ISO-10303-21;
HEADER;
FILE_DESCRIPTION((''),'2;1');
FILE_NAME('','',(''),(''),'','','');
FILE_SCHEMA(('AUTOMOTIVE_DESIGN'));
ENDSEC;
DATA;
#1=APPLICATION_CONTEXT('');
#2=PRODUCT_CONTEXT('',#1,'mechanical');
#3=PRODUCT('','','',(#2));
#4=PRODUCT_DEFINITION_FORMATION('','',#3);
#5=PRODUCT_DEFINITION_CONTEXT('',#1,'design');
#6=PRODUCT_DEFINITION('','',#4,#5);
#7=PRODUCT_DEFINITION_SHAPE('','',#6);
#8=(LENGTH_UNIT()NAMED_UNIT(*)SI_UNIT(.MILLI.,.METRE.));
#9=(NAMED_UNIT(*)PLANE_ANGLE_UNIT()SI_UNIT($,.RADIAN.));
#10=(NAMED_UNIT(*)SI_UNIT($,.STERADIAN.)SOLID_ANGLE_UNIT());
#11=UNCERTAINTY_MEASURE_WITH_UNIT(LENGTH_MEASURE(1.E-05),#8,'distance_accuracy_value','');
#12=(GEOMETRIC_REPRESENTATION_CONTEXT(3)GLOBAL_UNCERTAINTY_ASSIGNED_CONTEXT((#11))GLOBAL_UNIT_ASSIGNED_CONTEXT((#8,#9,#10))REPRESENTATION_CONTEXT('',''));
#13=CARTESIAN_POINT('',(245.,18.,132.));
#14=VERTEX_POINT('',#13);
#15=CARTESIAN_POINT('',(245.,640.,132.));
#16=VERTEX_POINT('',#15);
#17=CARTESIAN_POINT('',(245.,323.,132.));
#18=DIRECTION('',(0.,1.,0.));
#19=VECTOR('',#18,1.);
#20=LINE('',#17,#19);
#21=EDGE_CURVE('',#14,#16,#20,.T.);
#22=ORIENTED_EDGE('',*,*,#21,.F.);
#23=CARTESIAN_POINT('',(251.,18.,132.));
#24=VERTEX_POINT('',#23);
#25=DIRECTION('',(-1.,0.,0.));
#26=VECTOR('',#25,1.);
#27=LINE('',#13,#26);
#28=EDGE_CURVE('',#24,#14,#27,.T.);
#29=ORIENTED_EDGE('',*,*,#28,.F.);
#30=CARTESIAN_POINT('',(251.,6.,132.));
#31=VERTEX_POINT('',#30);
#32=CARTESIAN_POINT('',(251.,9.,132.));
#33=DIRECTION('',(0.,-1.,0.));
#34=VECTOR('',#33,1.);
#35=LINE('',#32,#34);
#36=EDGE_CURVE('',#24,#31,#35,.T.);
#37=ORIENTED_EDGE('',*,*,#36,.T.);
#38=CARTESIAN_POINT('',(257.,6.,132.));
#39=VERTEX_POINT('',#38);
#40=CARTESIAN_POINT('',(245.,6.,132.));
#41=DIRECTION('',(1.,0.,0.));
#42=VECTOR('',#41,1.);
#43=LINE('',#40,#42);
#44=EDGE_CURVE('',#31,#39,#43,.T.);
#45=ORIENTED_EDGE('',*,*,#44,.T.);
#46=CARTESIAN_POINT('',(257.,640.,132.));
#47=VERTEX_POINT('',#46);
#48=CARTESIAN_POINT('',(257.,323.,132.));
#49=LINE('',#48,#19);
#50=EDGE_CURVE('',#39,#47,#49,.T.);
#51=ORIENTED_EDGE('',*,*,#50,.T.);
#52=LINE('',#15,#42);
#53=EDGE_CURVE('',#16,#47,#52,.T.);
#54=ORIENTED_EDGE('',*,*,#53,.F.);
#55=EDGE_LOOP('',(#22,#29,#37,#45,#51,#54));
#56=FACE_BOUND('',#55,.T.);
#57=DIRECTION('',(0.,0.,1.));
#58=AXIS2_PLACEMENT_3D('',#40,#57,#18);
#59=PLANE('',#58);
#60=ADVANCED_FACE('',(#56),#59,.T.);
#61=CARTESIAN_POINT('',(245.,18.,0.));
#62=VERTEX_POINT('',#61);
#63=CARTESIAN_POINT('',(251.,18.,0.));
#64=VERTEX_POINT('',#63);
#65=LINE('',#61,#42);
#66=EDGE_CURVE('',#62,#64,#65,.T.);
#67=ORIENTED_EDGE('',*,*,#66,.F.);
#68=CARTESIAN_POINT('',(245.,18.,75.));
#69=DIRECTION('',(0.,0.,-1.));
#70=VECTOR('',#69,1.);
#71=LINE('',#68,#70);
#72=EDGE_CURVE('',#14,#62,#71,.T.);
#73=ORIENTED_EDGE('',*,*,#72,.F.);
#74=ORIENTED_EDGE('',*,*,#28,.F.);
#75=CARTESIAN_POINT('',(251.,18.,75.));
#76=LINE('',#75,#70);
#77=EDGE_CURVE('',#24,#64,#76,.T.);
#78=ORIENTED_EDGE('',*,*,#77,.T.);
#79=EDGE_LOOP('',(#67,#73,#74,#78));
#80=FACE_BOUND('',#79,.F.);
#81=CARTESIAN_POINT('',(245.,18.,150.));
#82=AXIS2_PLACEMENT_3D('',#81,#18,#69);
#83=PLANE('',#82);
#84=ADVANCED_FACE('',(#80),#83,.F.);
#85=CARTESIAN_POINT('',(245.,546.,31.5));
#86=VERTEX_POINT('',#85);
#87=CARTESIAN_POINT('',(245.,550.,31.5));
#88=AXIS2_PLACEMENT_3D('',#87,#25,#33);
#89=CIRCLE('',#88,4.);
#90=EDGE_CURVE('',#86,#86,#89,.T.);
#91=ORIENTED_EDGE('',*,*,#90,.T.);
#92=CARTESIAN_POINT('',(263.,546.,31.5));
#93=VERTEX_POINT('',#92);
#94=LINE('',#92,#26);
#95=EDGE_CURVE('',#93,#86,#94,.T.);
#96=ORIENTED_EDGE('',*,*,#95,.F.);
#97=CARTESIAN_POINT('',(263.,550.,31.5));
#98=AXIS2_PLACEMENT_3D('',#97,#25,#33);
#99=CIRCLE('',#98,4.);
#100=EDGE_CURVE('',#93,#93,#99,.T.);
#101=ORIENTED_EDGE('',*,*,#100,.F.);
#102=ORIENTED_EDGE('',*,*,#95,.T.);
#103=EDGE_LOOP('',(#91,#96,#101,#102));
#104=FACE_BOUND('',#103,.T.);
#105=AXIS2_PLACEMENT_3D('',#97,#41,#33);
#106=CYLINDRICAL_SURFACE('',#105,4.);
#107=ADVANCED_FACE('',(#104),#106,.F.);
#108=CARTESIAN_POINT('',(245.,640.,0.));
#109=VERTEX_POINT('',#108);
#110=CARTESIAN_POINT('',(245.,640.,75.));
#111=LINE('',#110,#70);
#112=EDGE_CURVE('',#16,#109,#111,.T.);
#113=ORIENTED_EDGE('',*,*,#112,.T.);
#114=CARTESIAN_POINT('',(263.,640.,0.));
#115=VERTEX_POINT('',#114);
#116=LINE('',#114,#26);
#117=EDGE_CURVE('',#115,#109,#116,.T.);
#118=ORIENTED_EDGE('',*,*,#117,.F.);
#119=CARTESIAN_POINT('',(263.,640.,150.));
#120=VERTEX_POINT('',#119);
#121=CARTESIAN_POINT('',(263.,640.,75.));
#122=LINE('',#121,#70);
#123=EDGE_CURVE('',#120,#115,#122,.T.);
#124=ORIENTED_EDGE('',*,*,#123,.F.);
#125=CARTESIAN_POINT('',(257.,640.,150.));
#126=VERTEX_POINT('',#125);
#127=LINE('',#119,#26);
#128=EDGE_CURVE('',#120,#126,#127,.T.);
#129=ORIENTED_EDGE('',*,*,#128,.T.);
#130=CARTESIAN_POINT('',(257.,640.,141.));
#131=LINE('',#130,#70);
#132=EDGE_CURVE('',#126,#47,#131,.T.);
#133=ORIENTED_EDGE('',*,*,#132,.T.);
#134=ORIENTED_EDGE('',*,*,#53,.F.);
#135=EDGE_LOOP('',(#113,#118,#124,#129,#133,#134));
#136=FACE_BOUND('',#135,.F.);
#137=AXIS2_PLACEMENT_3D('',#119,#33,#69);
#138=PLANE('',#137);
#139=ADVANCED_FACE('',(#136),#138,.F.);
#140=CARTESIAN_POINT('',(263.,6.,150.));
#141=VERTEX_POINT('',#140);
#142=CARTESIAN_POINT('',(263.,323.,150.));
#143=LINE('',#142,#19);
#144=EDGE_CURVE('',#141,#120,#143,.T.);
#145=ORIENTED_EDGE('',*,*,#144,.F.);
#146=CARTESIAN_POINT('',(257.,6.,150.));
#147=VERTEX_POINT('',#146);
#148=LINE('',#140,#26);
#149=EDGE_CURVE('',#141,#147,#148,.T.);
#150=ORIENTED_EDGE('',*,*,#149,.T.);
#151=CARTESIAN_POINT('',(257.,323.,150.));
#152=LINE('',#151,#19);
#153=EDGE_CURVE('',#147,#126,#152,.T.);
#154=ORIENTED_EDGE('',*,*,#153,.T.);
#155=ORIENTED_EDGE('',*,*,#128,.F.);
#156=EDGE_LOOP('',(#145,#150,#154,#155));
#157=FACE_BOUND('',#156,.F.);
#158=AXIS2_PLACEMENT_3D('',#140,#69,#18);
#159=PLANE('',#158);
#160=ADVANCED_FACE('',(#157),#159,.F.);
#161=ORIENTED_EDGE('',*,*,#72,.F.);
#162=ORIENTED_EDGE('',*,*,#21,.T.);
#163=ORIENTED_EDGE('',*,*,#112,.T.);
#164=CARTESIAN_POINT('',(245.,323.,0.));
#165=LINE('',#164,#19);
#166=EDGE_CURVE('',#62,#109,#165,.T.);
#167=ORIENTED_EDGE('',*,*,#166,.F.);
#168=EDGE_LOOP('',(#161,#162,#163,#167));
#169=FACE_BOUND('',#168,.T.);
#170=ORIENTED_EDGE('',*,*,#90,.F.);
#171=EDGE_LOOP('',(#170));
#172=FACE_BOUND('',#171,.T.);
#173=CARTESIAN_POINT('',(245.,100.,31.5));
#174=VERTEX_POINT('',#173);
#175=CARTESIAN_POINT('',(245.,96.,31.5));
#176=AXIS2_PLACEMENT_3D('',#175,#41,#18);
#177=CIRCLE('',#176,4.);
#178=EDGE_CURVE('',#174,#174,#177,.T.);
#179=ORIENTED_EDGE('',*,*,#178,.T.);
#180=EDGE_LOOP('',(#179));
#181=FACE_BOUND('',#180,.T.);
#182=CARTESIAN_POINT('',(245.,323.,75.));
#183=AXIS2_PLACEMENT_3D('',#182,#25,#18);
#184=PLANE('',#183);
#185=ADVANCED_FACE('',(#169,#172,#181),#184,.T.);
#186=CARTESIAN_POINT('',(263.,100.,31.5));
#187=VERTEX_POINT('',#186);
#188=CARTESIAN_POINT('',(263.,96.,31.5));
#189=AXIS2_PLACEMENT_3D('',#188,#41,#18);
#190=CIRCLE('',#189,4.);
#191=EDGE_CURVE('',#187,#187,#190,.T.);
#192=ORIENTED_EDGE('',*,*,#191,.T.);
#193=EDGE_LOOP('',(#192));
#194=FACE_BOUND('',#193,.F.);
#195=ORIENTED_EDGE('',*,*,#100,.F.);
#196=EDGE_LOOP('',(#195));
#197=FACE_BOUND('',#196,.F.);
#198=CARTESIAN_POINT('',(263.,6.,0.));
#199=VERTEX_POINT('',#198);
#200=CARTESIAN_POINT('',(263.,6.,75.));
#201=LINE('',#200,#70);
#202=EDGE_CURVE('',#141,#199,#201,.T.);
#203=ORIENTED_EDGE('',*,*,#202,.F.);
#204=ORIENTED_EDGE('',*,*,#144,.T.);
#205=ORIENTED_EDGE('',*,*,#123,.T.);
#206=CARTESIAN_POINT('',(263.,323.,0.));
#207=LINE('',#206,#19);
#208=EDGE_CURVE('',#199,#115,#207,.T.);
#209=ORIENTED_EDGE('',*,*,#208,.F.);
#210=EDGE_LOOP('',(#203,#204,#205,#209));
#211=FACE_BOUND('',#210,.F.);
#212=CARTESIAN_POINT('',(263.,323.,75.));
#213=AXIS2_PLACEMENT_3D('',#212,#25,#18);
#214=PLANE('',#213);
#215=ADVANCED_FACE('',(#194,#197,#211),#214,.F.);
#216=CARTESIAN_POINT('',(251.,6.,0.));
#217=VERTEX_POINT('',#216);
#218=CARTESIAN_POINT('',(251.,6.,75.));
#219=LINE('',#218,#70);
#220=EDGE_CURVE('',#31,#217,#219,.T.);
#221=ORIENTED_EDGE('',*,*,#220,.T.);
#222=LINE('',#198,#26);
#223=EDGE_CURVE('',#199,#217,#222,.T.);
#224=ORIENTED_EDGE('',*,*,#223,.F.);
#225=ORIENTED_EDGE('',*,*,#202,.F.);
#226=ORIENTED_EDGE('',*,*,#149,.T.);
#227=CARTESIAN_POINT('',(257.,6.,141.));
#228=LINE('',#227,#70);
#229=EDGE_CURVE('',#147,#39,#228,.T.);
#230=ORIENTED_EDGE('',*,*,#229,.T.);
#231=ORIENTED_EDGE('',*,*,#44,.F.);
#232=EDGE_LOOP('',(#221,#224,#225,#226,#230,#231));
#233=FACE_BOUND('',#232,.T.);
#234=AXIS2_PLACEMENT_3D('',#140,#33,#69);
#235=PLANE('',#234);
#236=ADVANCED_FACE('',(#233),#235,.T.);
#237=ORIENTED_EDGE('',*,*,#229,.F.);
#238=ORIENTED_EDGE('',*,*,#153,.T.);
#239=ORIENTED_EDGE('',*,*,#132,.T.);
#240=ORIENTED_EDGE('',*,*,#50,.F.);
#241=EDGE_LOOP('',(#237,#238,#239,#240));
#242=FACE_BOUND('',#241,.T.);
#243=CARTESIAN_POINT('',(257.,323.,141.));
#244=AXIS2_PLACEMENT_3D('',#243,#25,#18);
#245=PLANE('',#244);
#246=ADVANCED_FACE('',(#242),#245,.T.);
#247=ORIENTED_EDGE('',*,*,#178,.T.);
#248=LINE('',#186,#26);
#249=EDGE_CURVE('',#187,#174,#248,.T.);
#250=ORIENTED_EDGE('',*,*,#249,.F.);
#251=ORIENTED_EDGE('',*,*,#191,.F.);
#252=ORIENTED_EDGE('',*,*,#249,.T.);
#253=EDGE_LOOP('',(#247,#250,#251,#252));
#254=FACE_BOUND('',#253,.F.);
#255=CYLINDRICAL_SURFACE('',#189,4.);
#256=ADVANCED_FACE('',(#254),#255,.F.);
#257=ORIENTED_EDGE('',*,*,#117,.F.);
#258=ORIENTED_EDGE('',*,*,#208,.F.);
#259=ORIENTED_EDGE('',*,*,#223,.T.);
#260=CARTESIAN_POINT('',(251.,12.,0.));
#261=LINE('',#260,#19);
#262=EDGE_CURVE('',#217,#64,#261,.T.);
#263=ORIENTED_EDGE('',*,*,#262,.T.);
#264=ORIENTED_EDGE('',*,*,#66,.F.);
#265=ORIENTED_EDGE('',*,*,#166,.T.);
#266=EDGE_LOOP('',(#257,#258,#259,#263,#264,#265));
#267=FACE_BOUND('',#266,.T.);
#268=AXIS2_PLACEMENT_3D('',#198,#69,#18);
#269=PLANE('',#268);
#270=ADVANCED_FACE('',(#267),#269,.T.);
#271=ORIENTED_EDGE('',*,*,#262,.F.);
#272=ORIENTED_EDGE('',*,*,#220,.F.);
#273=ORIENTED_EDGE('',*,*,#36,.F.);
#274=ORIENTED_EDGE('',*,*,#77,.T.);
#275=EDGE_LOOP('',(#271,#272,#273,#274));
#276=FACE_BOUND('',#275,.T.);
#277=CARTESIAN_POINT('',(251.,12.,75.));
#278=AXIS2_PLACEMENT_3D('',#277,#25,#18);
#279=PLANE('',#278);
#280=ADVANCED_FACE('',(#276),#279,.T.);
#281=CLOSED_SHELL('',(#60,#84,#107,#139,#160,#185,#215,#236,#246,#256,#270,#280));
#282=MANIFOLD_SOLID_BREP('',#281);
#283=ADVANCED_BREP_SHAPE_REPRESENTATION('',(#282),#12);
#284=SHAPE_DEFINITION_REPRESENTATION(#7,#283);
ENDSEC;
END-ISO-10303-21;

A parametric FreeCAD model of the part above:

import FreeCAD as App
import Part
import Sketcher

V = App.Vector

doc = App.newDocument("Part")
body = doc.addObject("PartDesign::Body", "Body")

# Sketch on XY plane
sketch1 = body.newObject("Sketcher::SketchObject", "Sketch")
sketch1.AttachmentSupport = (doc.getObject("XY_Plane"), [""])
sketch1.MapMode = "FlatFace"
sketch1.addGeometry([
    Part.LineSegment(V(-317, 150, 0), V(-317, 0, 0)),
    Part.LineSegment(V(-317, 0, 0), V(317, 0, 0)),
    Part.LineSegment(V(317, 0, 0), V(317, 150, 0)),
    Part.LineSegment(V(317, 150, 0), V(-317, 150, 0)),
], False)
sketch1.addConstraint([
    Sketcher.Constraint("Coincident", 0, 2, 1, 1),
    Sketcher.Constraint("Coincident", 1, 2, 2, 1),
    Sketcher.Constraint("Coincident", 2, 2, 3, 1),
    Sketcher.Constraint("Coincident", 3, 2, 0, 1),
    Sketcher.Constraint("Vertical", 0),
    Sketcher.Constraint("Horizontal", 1),
    Sketcher.Constraint("Vertical", 2),
    Sketcher.Constraint("Horizontal", 3),
    Sketcher.Constraint("Symmetric", 0, 2, 1, 2, -1, 1),
    Sketcher.Constraint("DistanceX", 1, 1, 1, 2, 634.0),
    Sketcher.Constraint("DistanceY", 0, 2, 0, 1, 150.0),
])
pad1 = body.newObject("PartDesign::Pad", "Pad")
pad1.Profile = sketch1
pad1.Length = 18

# Sketch on XY plane
sketch2 = body.newObject("Sketcher::SketchObject", "Sketch001")
sketch2.AttachmentSupport = (doc.getObject("XY_Plane"), [""])
sketch2.MapMode = "FlatFace"
sketch2.AttachmentOffset = App.Placement(V(0, 0, 18), App.Rotation())
sketch2.addGeometry([
    Part.LineSegment(V(-317, 18, 0), V(-317, 0, 0)),
    Part.LineSegment(V(-317, 0, 0), V(317, 0, 0)),
    Part.LineSegment(V(317, 0, 0), V(317, 18, 0)),
    Part.LineSegment(V(317, 18, 0), V(-317, 18, 0)),
], False)
sketch2.addConstraint([
    Sketcher.Constraint("Coincident", 0, 2, 1, 1),
    Sketcher.Constraint("Coincident", 1, 2, 2, 1),
    Sketcher.Constraint("Coincident", 2, 2, 3, 1),
    Sketcher.Constraint("Coincident", 3, 2, 0, 1),
    Sketcher.Constraint("Vertical", 0),
    Sketcher.Constraint("Horizontal", 1),
    Sketcher.Constraint("Vertical", 2),
    Sketcher.Constraint("Horizontal", 3),
    Sketcher.Constraint("Symmetric", 0, 2, 1, 2, -1, 1),
    Sketcher.Constraint("DistanceX", 1, 1, 1, 2, 634.0),
    Sketcher.Constraint("DistanceY", 0, 2, 0, 1, 18.0),
])
pocket1 = body.newObject("PartDesign::Pocket", "Pocket")
pocket1.Profile = sketch2
pocket1.Length = 12

# Sketch on XY plane
sketch3 = body.newObject("Sketcher::SketchObject", "Sketch002")
sketch3.AttachmentSupport = (doc.getObject("XY_Plane"), [""])
sketch3.MapMode = "FlatFace"
sketch3.AttachmentOffset = App.Placement(V(0, 0, 18), App.Rotation())
sketch3.addGeometry([
    Part.LineSegment(V(-317, 150, 0), V(-317, 0, 0)),
    Part.LineSegment(V(-317, 0, 0), V(-305, 0, 0)),
    Part.LineSegment(V(-305, 0, 0), V(-305, 150, 0)),
    Part.LineSegment(V(-305, 150, 0), V(-317, 150, 0)),
], False)
sketch3.addConstraint([
    Sketcher.Constraint("Coincident", 0, 2, 1, 1),
    Sketcher.Constraint("Coincident", 1, 2, 2, 1),
    Sketcher.Constraint("Coincident", 2, 2, 3, 1),
    Sketcher.Constraint("Coincident", 3, 2, 0, 1),
    Sketcher.Constraint("Vertical", 0),
    Sketcher.Constraint("Horizontal", 1),
    Sketcher.Constraint("Vertical", 2),
    Sketcher.Constraint("Horizontal", 3),
    Sketcher.Constraint("PointOnObject", 0, 2, -1),
    Sketcher.Constraint("DistanceX", 1, 1, 1, 2, 12.0),
    Sketcher.Constraint("DistanceY", 0, 2, 0, 1, 150.0),
    Sketcher.Constraint("DistanceX", 0, 2, -1, 1, 317.0),
])
pocket2 = body.newObject("PartDesign::Pocket", "Pocket001")
pocket2.Profile = sketch3
pocket2.Length = 6

# Sketch on XY plane
sketch4 = body.newObject("Sketcher::SketchObject", "Sketch003")
sketch4.AttachmentSupport = (doc.getObject("XY_Plane"), [""])
sketch4.MapMode = "FlatFace"
sketch4.addGeometry(Part.Circle(V(-227, 118.5, 0), V(0, 0, 1), 4), False)
sketch4.addConstraint([
    Sketcher.Constraint("Diameter", 0, 8.0),
    Sketcher.Constraint("DistanceX", 0, 3, -1, 1, 227.0),
    Sketcher.Constraint("DistanceY", -1, 1, 0, 3, 118.5),
])
pocket3 = body.newObject("PartDesign::Pocket", "Pocket002")
pocket3.Profile = sketch4
pocket3.Length = 18
pocket3.Reversed = True
doc.recompute()

mirrored = body.newObject("PartDesign::Mirrored", "Mirrored")
mirrored.Originals = [pocket3]
mirrored.MirrorPlane = (doc.getObject("YZ_Plane"), [""])
body.Tip = mirrored
body2 = doc.addObject("PartDesign::Body", "Body001")
doc.recompute()

body.Placement = App.Placement(V(0, 0, 0), App.Rotation(V(1, 0, 0), 270))
boolean = body2.newObject("PartDesign::Boolean", "Boolean")
boolean.Type = "Fuse"
boolean.addObjects([body])
body3 = doc.addObject("PartDesign::Body", "Body002")
doc.recompute()

body2.Placement = App.Placement(V(263, 323, 150), App.Rotation(V(0, 0, 1), 90))
boolean2 = body3.newObject("PartDesign::Boolean", "Boolean001")
boolean2.Type = "Fuse"
boolean2.addObjects([body2])

doc.recompute()
